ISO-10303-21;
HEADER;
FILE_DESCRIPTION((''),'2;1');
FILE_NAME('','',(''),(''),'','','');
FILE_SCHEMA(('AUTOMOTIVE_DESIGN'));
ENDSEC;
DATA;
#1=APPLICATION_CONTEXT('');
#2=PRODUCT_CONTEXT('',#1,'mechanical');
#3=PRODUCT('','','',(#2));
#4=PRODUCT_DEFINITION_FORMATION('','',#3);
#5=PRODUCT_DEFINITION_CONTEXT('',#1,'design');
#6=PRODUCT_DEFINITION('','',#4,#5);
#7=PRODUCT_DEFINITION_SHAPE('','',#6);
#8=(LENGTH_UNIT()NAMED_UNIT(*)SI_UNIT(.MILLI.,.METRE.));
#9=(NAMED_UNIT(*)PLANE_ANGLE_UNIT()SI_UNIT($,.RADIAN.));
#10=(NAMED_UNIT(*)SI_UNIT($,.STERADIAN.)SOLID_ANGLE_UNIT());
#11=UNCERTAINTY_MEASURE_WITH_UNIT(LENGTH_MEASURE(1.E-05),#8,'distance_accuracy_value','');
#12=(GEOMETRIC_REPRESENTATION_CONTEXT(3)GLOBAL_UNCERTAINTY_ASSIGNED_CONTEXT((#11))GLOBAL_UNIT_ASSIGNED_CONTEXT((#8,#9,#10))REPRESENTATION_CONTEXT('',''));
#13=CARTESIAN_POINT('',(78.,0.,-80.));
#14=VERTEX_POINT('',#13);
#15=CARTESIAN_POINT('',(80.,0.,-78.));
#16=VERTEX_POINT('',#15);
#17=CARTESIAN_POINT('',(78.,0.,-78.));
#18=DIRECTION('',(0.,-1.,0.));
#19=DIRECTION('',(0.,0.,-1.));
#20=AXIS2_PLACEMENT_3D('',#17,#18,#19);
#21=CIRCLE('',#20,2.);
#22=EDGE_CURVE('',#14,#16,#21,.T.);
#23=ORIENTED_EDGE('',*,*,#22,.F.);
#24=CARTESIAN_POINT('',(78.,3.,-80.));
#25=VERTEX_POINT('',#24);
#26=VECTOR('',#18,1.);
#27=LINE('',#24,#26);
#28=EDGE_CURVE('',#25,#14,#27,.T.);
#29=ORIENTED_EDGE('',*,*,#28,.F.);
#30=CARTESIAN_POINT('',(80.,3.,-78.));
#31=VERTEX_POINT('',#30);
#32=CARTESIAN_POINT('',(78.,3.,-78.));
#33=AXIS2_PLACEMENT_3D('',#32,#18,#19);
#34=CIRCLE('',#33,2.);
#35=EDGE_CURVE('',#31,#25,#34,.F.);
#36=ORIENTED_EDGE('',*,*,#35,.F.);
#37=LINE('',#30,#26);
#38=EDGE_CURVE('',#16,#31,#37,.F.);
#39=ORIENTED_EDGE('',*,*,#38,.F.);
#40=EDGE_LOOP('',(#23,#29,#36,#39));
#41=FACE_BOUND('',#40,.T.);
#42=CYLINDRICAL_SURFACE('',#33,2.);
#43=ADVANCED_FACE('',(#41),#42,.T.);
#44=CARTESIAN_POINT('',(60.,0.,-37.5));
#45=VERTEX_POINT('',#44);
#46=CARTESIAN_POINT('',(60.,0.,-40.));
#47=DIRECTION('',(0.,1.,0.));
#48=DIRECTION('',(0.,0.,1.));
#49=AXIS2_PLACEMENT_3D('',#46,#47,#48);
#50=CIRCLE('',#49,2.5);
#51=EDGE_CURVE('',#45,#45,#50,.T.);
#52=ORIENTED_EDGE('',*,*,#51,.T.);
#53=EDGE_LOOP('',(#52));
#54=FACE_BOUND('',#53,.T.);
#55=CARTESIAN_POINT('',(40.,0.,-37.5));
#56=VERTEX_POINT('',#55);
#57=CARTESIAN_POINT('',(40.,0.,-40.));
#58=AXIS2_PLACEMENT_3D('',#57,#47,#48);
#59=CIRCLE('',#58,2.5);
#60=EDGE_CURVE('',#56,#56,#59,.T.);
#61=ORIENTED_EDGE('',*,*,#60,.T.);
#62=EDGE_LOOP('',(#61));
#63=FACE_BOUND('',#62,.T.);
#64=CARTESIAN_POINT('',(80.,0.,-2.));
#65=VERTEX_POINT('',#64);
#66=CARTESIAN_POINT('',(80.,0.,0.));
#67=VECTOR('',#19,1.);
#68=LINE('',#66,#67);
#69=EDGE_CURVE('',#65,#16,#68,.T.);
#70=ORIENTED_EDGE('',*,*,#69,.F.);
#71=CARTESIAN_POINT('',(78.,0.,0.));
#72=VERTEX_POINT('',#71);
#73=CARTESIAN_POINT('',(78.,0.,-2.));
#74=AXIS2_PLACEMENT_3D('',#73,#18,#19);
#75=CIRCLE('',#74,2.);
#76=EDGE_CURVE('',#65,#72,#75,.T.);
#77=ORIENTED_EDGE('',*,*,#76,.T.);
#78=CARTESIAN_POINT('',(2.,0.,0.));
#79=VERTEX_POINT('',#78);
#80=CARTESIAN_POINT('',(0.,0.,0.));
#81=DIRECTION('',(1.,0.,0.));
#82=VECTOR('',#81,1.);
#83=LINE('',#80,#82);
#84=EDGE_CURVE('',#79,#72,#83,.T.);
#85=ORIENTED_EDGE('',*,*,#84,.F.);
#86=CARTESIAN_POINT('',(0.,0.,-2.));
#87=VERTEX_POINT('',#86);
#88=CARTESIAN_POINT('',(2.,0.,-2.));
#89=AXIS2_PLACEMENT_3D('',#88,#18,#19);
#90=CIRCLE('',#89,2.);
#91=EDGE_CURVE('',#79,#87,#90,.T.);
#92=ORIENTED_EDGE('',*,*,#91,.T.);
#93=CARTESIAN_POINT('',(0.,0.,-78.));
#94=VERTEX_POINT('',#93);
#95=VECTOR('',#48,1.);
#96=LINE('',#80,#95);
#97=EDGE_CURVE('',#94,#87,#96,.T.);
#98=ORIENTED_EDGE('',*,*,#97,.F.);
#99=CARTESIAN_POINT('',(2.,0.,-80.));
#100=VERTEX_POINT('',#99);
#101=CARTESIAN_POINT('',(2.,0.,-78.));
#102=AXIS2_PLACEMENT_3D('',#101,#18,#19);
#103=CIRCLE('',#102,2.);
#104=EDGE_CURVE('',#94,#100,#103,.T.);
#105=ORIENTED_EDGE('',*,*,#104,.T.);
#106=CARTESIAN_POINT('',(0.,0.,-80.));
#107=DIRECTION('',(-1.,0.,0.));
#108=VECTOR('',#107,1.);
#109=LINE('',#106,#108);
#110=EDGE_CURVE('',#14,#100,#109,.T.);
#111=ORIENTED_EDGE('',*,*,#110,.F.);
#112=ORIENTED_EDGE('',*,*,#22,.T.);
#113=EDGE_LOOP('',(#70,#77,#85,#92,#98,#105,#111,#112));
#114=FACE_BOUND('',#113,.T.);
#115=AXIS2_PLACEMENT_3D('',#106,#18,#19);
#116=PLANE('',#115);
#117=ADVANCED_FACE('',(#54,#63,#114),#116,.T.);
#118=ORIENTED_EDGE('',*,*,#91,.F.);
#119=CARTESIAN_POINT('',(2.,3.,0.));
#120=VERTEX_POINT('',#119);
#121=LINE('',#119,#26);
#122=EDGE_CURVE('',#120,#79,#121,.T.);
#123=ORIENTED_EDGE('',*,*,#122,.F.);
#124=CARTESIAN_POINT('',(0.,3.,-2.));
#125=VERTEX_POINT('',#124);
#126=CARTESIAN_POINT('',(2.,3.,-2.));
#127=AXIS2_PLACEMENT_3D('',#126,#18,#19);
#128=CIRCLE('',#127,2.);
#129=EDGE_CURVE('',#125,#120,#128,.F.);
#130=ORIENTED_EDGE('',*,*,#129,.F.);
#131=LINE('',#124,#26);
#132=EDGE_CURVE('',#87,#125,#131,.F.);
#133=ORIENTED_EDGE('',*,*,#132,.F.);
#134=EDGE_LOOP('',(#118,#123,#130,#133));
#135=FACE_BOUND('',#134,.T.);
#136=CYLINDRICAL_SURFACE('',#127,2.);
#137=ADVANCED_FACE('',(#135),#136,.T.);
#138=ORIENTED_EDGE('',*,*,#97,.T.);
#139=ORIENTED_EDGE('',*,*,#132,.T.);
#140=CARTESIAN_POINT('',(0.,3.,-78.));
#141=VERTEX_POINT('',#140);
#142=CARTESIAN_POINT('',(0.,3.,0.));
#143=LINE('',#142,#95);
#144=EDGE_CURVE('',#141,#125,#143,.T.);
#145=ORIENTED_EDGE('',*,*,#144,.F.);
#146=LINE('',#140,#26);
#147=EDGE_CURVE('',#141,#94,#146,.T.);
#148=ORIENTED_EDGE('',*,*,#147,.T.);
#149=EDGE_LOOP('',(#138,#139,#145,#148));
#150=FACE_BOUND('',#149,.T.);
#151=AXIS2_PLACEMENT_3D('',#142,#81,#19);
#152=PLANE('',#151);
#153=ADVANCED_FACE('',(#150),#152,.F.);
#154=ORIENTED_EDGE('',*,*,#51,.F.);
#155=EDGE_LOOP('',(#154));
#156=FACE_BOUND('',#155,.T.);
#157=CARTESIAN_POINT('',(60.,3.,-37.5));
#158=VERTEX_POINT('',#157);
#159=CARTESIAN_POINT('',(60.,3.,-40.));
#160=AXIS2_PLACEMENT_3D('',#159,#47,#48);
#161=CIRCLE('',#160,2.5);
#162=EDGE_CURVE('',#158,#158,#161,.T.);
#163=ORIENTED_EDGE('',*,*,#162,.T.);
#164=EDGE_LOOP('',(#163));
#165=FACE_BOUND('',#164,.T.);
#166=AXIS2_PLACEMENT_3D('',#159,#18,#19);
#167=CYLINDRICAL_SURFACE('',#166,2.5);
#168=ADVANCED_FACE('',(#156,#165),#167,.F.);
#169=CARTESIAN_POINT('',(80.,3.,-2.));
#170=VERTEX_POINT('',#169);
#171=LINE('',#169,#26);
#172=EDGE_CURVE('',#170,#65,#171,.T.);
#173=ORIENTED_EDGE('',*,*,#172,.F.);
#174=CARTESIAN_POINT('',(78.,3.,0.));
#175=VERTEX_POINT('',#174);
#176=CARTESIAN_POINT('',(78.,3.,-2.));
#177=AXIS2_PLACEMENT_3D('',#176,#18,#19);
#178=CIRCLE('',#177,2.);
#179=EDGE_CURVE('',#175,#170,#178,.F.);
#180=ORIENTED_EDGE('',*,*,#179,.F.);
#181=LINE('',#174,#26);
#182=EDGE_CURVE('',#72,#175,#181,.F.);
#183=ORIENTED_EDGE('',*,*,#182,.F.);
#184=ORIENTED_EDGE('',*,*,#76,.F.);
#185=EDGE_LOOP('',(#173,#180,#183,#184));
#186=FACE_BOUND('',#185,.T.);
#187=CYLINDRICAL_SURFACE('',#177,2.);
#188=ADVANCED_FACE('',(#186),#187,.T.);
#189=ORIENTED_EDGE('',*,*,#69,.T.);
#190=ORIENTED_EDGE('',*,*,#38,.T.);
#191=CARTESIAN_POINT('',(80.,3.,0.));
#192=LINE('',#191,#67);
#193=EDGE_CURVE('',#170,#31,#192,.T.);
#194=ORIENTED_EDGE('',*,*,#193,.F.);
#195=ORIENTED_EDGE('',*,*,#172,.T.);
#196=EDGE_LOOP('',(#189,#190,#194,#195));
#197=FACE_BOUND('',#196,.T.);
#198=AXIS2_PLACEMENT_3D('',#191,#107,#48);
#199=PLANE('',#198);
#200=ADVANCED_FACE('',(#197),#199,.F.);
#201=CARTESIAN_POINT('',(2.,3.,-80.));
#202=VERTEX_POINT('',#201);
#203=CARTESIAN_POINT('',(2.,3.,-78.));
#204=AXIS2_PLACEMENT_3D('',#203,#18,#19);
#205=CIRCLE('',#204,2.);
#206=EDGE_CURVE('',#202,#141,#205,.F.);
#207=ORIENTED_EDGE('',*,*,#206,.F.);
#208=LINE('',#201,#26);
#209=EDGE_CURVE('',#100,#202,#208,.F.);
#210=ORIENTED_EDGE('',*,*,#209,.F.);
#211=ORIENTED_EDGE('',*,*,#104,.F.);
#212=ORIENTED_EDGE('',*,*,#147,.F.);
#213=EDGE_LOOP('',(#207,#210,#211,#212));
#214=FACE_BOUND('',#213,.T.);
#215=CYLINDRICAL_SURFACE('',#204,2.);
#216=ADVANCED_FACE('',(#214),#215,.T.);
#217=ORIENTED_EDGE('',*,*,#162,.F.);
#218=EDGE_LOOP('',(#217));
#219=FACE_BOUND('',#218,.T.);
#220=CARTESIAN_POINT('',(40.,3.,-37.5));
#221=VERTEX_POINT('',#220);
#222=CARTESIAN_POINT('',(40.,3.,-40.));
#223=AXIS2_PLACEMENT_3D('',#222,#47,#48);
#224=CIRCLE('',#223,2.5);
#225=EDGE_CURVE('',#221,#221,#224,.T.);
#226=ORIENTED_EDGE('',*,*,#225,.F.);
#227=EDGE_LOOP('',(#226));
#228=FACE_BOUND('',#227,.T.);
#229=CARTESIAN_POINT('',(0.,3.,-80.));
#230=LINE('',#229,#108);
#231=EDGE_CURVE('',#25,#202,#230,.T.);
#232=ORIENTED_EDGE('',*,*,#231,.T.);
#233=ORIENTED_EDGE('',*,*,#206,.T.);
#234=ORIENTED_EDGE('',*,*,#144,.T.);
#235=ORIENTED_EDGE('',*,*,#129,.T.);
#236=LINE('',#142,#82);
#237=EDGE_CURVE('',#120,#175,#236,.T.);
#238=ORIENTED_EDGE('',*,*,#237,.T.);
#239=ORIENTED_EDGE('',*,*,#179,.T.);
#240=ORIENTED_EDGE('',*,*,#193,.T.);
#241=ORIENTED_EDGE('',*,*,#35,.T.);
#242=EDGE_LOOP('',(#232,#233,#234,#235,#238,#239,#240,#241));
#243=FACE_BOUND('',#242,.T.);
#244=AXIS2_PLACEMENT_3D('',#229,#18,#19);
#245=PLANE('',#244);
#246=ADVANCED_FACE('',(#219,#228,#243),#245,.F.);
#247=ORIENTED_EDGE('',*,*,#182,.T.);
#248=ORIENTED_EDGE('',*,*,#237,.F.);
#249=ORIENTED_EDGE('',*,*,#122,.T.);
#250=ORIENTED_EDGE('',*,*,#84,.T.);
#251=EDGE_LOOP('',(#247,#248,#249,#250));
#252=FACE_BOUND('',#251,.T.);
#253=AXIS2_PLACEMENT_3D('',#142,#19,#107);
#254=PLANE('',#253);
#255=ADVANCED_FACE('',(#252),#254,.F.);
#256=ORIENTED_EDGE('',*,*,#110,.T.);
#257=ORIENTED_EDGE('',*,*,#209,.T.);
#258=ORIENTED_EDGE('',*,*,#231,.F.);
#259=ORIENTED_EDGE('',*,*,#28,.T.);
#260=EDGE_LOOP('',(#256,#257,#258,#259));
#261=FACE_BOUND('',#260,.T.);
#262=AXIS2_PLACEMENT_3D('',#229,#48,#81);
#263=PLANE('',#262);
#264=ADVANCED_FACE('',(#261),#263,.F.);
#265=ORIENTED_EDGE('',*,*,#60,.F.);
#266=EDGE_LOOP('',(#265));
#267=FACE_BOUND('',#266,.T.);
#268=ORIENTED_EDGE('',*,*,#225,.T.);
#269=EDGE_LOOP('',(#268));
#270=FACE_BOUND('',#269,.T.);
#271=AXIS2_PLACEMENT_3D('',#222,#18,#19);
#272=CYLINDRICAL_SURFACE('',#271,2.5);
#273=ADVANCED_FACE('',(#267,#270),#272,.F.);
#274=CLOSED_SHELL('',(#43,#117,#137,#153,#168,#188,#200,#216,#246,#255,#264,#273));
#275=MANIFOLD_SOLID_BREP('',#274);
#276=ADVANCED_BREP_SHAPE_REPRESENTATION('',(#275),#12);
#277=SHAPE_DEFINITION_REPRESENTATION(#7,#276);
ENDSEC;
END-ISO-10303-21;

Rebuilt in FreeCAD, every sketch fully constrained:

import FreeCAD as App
import Part
import Sketcher

V = App.Vector
Q = App.Units.Quantity


def edges_at(feature, points):
    """Names of the edges that pass closest to the given points."""
    edges = feature.Shape.Edges
    near = lambda p: min(range(len(edges)), key=lambda i: edges[i].distToShape(Part.Vertex(*p))[0])
    return sorted({f"Edge{near(p) + 1}" for p in points})


def add_polygon(sketch, points):
    """Adds a closed chain of lines whose ends are joined by coincident constraints."""
    first, n = sketch.GeometryCount, len(points)
    for a, b in zip(points, points[1:] + points[:1]):
        sketch.addGeometry(Part.LineSegment(App.Vector(*a, 0), App.Vector(*b, 0)), False)
    for i in range(n):
        sketch.addConstraint(Sketcher.Constraint("Coincident", first + i, 2, first + (i + 1) % n, 1))

doc = App.newDocument("Part")
body = doc.addObject("PartDesign::Body", "Body")

sketch1 = doc.addObject("Sketcher::SketchObject", "Sketch")
body.addObject(sketch1)
sketch1.AttachmentSupport = (doc.XZ_Plane, [""])
sketch1.MapMode = "FlatFace"
add_polygon(sketch1, [(0, -80), (0, 0), (80, 0), (80, -80)])
sketch1.addGeometry(Part.Circle(V(40, -40, 0), V(0, 0, 1), 2.5), False)
sketch1.addGeometry(Part.Circle(V(60, -40, 0), V(0, 0, 1), 2.5), False)
sketch1.addConstraint(Sketcher.Constraint("Vertical", 0))
sketch1.addConstraint(Sketcher.Constraint("Horizontal", 1))
sketch1.addConstraint(Sketcher.Constraint("Vertical", 2))
sketch1.addConstraint(Sketcher.Constraint("Horizontal", 3))
sketch1.addConstraint(Sketcher.Constraint("Coincident", 0, 2, -1, 1))
sketch1.addConstraint(Sketcher.Constraint("Equal", 4, 5))
sketch1.addConstraint(Sketcher.Constraint("Horizontal", 4, 3, 5, 3))
sketch1.addConstraint(Sketcher.Constraint("Equal", 3, 0))
sketch1.addConstraint(Sketcher.Constraint("Diameter", 4, Q("5 mm")))
sketch1.addConstraint(Sketcher.Constraint("DistanceX", 1, 1, 1, 2, Q("80 mm")))
sketch1.addConstraint(Sketcher.Constraint("DistanceX", -1, 1, 4, 3, Q("40 mm")))
sketch1.addConstraint(Sketcher.Constraint("DistanceY", 4, 3, -1, 1, Q("40 mm")))
sketch1.addConstraint(Sketcher.Constraint("DistanceX", -1, 1, 5, 3, Q("60 mm")))
pad1 = doc.addObject("PartDesign::Pad", "Pad")
body.addObject(pad1)
pad1.Profile = sketch1
pad1.Length = 3
pad1.Reversed = True
doc.recompute()

fillet = doc.addObject("PartDesign::Fillet", "Fillet")
body.addObject(fillet)
fillet.Base = (pad1, edges_at(pad1, [
    (0, 1.5, -80),
    (80, 1.5, -80),
    (80, 1.5, 0),
    (0, 1.5, 0),
]))
fillet.Radius = 2

doc.recompute()
